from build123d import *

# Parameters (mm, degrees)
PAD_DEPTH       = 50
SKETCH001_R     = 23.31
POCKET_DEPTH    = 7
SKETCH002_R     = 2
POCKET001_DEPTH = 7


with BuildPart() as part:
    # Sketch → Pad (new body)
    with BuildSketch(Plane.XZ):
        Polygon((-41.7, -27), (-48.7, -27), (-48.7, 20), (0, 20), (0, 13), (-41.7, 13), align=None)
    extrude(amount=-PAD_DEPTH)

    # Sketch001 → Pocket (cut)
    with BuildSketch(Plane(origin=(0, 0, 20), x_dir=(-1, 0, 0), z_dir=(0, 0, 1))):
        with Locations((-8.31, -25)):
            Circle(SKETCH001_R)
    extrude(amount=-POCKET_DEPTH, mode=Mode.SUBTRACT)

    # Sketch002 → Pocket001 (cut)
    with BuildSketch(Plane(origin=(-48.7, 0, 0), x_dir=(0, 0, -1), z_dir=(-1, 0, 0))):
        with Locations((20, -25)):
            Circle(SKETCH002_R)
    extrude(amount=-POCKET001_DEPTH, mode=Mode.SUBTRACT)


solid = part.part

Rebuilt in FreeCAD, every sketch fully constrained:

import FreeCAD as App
import Part
import Sketcher
from FreeCAD import Vector


def add_polygon(sketch, points):
    """Adds a closed chain of lines whose ends are joined by coincident constraints."""
    first, n = sketch.GeometryCount, len(points)
    for a, b in zip(points, points[1:] + points[:1]):
        sketch.addGeometry(Part.LineSegment(App.Vector(*a, 0), App.Vector(*b, 0)), False)
    for i in range(n):
        sketch.addConstraint(Sketcher.Constraint("Coincident", first + i, 2, first + (i + 1) % n, 1))

doc = App.newDocument("Part")
body = doc.addObject("PartDesign::Body", "Body")

# Sketch on XZ plane
sketch1 = body.newObject("Sketcher::SketchObject", "Sketch")
sketch1.AttachmentSupport = (doc.getObject("XZ_Plane"), [""])
sketch1.MapMode = "FlatFace"
add_polygon(sketch1, [(-48.7, -27), (-41.7, -27), (-41.7, 13), (0, 13), (0, 20), (-48.7, 20)])  # lines 0-5
sketch1.addConstraint(Sketcher.Constraint("Horizontal", 0))
sketch1.addConstraint(Sketcher.Constraint("Vertical", 1))
sketch1.addConstraint(Sketcher.Constraint("Horizontal", 2))
sketch1.addConstraint(Sketcher.Constraint("Vertical", 3))
sketch1.addConstraint(Sketcher.Constraint("Horizontal", 4))
sketch1.addConstraint(Sketcher.Constraint("Vertical", 5))
sketch1.addConstraint(Sketcher.Constraint("PointOnObject", 2, 2, -2))
sketch1.addConstraint(Sketcher.Constraint("Equal", 0, 3))
sketch1.addConstraint(Sketcher.Constraint("DistanceX", 0, 1, 0, 2, 7.0))
sketch1.addConstraint(Sketcher.Constraint("DistanceY", 1, 1, 1, 2, 40.0))
sketch1.addConstraint(Sketcher.Constraint("DistanceX", 2, 1, 2, 2, 41.7))
sketch1.addConstraint(Sketcher.Constraint("DistanceY", 0, 2, -1, 1, 27.0))
pad1 = body.newObject("PartDesign::Pad", "Pad")
pad1.Profile = sketch1
pad1.Length = 50
pad1.Reversed = True

# Sketch on XY plane
sketch2 = body.newObject("Sketcher::SketchObject", "Sketch001")
sketch2.AttachmentSupport = (doc.getObject("XY_Plane"), [""])
sketch2.MapMode = "FlatFace"
sketch2.AttachmentOffset = App.Placement(Vector(0, 0, 20), App.Rotation())
sketch2.addGeometry(Part.Circle(Vector(8.31, 25, 0), Vector(0, 0, 1), 23.31), False)
sketch2.addConstraint(Sketcher.Constraint("Diameter", 0, 46.62))
sketch2.addConstraint(Sketcher.Constraint("DistanceY", -1, 1, 0, 3, 25.0))
sketch2.addConstraint(Sketcher.Constraint("DistanceX", -1, 1, 0, 3, 8.31))
pocket1 = body.newObject("PartDesign::Pocket", "Pocket")
pocket1.Profile = sketch2
pocket1.Length = 7

# Sketch on YZ plane
sketch3 = body.newObject("Sketcher::SketchObject", "Sketch002")
sketch3.AttachmentSupport = (doc.getObject("YZ_Plane"), [""])
sketch3.MapMode = "FlatFace"
sketch3.AttachmentOffset = App.Placement(Vector(0, 0, -48.7), App.Rotation())
sketch3.addGeometry(Part.Circle(Vector(25, -20, 0), Vector(0, 0, 1), 2), False)
sketch3.addConstraint(Sketcher.Constraint("Diameter", 0, 4.0))
sketch3.addConstraint(Sketcher.Constraint("DistanceX", -1, 1, 0, 3, 25.0))
sketch3.addConstraint(Sketcher.Constraint("DistanceY", 0, 3, -1, 1, 20.0))
pocket2 = body.newObject("PartDesign::Pocket", "Pocket001")
pocket2.Profile = sketch3
pocket2.Length = 7
pocket2.Reversed = True

doc.recompute()
